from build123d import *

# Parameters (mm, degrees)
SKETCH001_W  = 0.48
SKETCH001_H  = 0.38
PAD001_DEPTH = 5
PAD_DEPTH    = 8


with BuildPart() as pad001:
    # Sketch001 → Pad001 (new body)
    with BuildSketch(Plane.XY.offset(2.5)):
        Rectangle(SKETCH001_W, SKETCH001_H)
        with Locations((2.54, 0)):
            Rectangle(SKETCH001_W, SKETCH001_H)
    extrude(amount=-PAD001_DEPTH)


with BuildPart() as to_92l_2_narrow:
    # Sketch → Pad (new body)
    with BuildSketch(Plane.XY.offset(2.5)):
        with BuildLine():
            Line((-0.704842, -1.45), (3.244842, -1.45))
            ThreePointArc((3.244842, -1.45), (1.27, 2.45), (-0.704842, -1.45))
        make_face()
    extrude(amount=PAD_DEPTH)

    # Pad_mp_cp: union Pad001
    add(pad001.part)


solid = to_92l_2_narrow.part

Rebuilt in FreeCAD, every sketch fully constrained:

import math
import FreeCAD as App
import Part
import Sketcher
from FreeCAD import Vector


def add_polygon(sketch, points):
    """Adds a closed chain of lines whose ends are joined by coincident constraints."""
    first, n = sketch.GeometryCount, len(points)
    for a, b in zip(points, points[1:] + points[:1]):
        sketch.addGeometry(Part.LineSegment(App.Vector(*a, 0), App.Vector(*b, 0)), False)
    for i in range(n):
        sketch.addConstraint(Sketcher.Constraint("Coincident", first + i, 2, first + (i + 1) % n, 1))

doc = App.newDocument("Part")
params = doc.addObject("Spreadsheet::Sheet", "Params")
for row, (alias, value) in enumerate([
    ("sketch1_width", "0.48 mm"),
    ("sketch1_height", "0.38 mm"),
    ("pad1_length", "5 mm"),
    ("sketch2_radius", "2.45 mm"),
    ("pad2_length", "8 mm"),
], start=1):
    params.set(f"A{row}", alias)
    params.set(f"B{row}", "=" + value)
    params.setAlias(f"B{row}", alias)

body = doc.addObject("PartDesign::Body", "Body")
body.AllowCompound = True

# Sketch on XY plane
sketch1 = body.newObject("Sketcher::SketchObject", "Sketch")
sketch1.AttachmentSupport = (doc.getObject("XY_Plane"), [""])
sketch1.MapMode = "FlatFace"
sketch1.AttachmentOffset = App.Placement(Vector(0, 0, 2.5), App.Rotation())
add_polygon(sketch1, [(-0.24, 0.19), (-0.24, -0.19), (0.24, -0.19), (0.24, 0.19)])  # lines 0-3
add_polygon(sketch1, [(2.3, 0.19), (2.3, -0.19), (2.78, -0.19), (2.78, 0.19)])  # lines 4-7
sketch1.addConstraint([
    Sketcher.Constraint("Vertical", 0),
    Sketcher.Constraint("Horizontal", 1),
    Sketcher.Constraint("Vertical", 2),
    Sketcher.Constraint("Horizontal", 3),
    Sketcher.Constraint("Vertical", 4),
    Sketcher.Constraint("Horizontal", 5),
    Sketcher.Constraint("Vertical", 6),
    Sketcher.Constraint("Horizontal", 7),
    Sketcher.Constraint("Symmetric", 0, 2, 2, 2, -1, 1),
    Sketcher.Constraint("Horizontal", 1, 2, 4, 2),
    Sketcher.Constraint("Horizontal", 3, 2, 6, 2),
    Sketcher.Constraint("Equal", 3, 5),
    Sketcher.Constraint("DistanceX", 1, 1, 1, 2, 0.48),
    Sketcher.Constraint("DistanceY", 0, 2, 0, 1, 0.38),
    Sketcher.Constraint("DistanceX", -1, 1, 4, 2, 2.3),
])
sketch1.setExpression("Constraints[20]", "Params.sketch1_width")
sketch1.setExpression("Constraints[21]", "Params.sketch1_height")
pad1 = body.newObject("PartDesign::Pad", "Pad")
pad1.Profile = sketch1
pad1.setExpression("Length", "Params.pad1_length")
pad1.Reversed = True
body2 = doc.addObject("PartDesign::Body", "Body001")

# Sketch on XY plane
sketch2 = body2.newObject("Sketcher::SketchObject", "Sketch001")
sketch2.AttachmentSupport = (doc.getObject("XY_Plane001"), [""])
sketch2.MapMode = "FlatFace"
sketch2.AttachmentOffset = App.Placement(Vector(0, 0, 2.5), App.Rotation())
sketch2.addGeometry([
    Part.LineSegment(Vector(-0.7, -1.4, 0), Vector(3.2, -1.4, 0)),
    Part.ArcOfCircle(Part.Circle(Vector(1.3, 0, 0), Vector(0, 0, 1), 2.5), math.radians(-36), math.radians(216)),
], False)
sketch2.addConstraint([
    Sketcher.Constraint("Coincident", 0, 1, 1, 2),
    Sketcher.Constraint("Coincident", 1, 1, 0, 2),
    Sketcher.Constraint("Horizontal", 0),
    Sketcher.Constraint("PointOnObject", 1, 3, -1),
    Sketcher.Constraint("Radius", 1, 2.45),
    Sketcher.Constraint("DistanceX", -1, 1, 1, 3, 1.27),
    Sketcher.Constraint("DistanceY", 0, 1, -1, 1, 1.45),
])
sketch2.setExpression("Constraints[4]", "Params.sketch2_radius")
pad2 = body2.newObject("PartDesign::Pad", "Pad001")
pad2.Profile = sketch2
pad2.setExpression("Length", "Params.pad2_length")
doc.recompute()

boolean = body2.newObject("PartDesign::Boolean", "Boolean")
boolean.Type = "Fuse"
boolean.addObjects([body])

doc.recompute()
